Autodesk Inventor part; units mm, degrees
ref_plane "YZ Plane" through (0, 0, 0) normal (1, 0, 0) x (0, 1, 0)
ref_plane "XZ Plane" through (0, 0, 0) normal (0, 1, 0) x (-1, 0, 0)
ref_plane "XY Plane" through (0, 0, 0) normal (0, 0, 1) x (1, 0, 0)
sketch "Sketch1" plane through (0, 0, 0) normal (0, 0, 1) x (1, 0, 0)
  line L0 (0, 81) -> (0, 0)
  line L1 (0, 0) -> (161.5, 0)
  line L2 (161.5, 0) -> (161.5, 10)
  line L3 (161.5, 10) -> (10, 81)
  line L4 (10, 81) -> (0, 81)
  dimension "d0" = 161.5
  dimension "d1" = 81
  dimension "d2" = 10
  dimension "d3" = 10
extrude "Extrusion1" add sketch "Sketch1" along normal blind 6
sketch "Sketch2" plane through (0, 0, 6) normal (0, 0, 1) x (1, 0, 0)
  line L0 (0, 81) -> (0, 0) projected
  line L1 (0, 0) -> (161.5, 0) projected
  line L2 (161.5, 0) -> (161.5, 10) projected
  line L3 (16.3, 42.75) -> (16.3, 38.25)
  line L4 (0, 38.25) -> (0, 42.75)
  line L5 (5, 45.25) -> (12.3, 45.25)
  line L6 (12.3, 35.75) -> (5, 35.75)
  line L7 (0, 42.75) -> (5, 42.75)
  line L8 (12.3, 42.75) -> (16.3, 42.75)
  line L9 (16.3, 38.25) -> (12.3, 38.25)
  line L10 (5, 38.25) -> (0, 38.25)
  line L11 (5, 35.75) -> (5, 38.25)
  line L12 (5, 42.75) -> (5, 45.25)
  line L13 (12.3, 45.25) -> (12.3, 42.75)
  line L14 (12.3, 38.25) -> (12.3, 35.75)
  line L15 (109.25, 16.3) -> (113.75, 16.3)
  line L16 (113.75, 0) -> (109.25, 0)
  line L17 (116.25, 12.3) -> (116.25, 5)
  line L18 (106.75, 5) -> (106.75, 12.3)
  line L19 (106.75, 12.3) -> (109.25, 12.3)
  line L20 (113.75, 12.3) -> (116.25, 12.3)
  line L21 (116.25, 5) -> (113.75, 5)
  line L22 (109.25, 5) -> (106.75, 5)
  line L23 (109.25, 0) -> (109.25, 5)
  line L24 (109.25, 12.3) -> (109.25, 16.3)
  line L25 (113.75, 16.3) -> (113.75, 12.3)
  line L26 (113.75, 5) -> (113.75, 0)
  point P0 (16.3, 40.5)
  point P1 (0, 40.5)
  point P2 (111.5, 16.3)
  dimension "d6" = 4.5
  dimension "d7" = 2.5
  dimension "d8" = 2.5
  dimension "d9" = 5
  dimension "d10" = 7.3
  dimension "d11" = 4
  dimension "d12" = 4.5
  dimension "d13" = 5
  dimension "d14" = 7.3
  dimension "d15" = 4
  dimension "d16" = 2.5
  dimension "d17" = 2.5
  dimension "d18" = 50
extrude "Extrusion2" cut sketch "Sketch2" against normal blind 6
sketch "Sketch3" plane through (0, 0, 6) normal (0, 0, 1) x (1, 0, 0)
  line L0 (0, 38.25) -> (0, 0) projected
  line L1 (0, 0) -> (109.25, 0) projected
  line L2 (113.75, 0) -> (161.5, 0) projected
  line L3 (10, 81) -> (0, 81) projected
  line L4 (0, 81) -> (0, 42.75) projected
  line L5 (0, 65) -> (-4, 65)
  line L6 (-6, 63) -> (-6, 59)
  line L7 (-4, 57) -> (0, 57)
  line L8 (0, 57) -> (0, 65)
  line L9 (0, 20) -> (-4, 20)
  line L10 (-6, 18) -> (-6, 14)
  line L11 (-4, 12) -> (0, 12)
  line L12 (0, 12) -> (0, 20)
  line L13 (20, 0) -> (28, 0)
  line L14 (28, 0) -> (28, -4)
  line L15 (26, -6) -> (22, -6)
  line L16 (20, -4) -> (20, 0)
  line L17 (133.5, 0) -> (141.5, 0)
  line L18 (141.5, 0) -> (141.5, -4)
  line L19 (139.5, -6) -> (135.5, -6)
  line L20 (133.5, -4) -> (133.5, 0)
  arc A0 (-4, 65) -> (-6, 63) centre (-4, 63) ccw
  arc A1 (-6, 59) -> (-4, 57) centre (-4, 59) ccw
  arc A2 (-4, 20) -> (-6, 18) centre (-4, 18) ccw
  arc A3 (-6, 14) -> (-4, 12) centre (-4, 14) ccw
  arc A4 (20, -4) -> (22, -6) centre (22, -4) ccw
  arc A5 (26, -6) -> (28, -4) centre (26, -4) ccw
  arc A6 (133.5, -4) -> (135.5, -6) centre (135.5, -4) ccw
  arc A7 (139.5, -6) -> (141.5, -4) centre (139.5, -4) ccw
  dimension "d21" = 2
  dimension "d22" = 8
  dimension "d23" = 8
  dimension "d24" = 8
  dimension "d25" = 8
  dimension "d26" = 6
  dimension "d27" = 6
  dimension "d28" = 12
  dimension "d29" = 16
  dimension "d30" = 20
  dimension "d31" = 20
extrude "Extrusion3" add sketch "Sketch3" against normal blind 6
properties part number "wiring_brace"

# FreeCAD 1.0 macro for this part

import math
import FreeCAD as App
import Part
import Sketcher

V = App.Vector


def add_polygon(sketch, points):
    """Adds a closed chain of lines whose ends are joined by coincident constraints."""
    first, n = sketch.GeometryCount, len(points)
    for a, b in zip(points, points[1:] + points[:1]):
        sketch.addGeometry(Part.LineSegment(App.Vector(*a, 0), App.Vector(*b, 0)), False)
    for i in range(n):
        sketch.addConstraint(Sketcher.Constraint("Coincident", first + i, 2, first + (i + 1) % n, 1))

doc = App.newDocument("Part")
body = doc.addObject("PartDesign::Body", "Body")

# Sketch on XY plane
sketch1 = body.newObject("Sketcher::SketchObject", "Sketch")
sketch1.AttachmentSupport = (doc.getObject("XY_Plane"), [""])
sketch1.MapMode = "FlatFace"
add_polygon(sketch1, [(10, 81), (0, 81), (0, 0), (162, 0), (162, 10)])  # lines 0-4
sketch1.addConstraint([
    Sketcher.Constraint("Horizontal", 0),
    Sketcher.Constraint("Vertical", 1),
    Sketcher.Constraint("Horizontal", 2),
    Sketcher.Constraint("Vertical", 3),
    Sketcher.Constraint("Coincident", 1, 2, -1, 1),
    Sketcher.Constraint("Equal", 0, 3),
    Sketcher.Constraint("DistanceX", 0, 2, 0, 1, 10.0),
    Sketcher.Constraint("DistanceY", 1, 2, 1, 1, 81.0),
    Sketcher.Constraint("DistanceX", 2, 1, 2, 2, 161.5),
])
pad1 = body.newObject("PartDesign::Pad", "Pad")
pad1.Profile = sketch1
pad1.Length = 6

# Sketch on XY plane
sketch2 = body.newObject("Sketcher::SketchObject", "Sketch001")
sketch2.AttachmentSupport = (doc.getObject("XY_Plane"), [""])
sketch2.MapMode = "FlatFace"
sketch2.AttachmentOffset = App.Placement(V(0, 0, 6), App.Rotation())
add_polygon(sketch2, [(5, 42.8), (0, 42.8), (0, 38.2), (5, 38.2), (5, 35.8), (12.3, 35.8), (12.3, 38.2), (16.3, 38.2), (16.3, 42.8), (12.3, 42.8), (12.3, 45.2), (5, 45.2)])  # lines 0-11
add_polygon(sketch2, [(109.2, 5), (109.2, 0), (113.8, 0), (113.8, 5), (116.2, 5), (116.2, 12.3), (113.8, 12.3), (113.8, 16.3), (109.2, 16.3), (109.2, 12.3), (106.8, 12.3), (106.8, 5)])  # lines 12-23
sketch2.addConstraint([
    Sketcher.Constraint("Horizontal", 0),
    Sketcher.Constraint("Vertical", 1),
    Sketcher.Constraint("Horizontal", 2),
    Sketcher.Constraint("Vertical", 3),
    Sketcher.Constraint("Horizontal", 4),
    Sketcher.Constraint("Vertical", 5),
    Sketcher.Constraint("Horizontal", 6),
    Sketcher.Constraint("Vertical", 7),
    Sketcher.Constraint("Horizontal", 8),
    Sketcher.Constraint("Vertical", 9),
    Sketcher.Constraint("Horizontal", 10),
    Sketcher.Constraint("Vertical", 11),
    Sketcher.Constraint("Vertical", 12),
    Sketcher.Constraint("Horizontal", 13),
    Sketcher.Constraint("Vertical", 14),
    Sketcher.Constraint("Horizontal", 15),
    Sketcher.Constraint("Vertical", 16),
    Sketcher.Constraint("Horizontal", 17),
    Sketcher.Constraint("Vertical", 18),
    Sketcher.Constraint("Horizontal", 19),
    Sketcher.Constraint("Vertical", 20),
    Sketcher.Constraint("Horizontal", 21),
    Sketcher.Constraint("Vertical", 22),
    Sketcher.Constraint("Horizontal", 23),
    Sketcher.Constraint("PointOnObject", 0, 2, -2),
    Sketcher.Constraint("PointOnObject", 12, 2, -1),
    Sketcher.Constraint("Horizontal", 2, 2, 5, 2),
    Sketcher.Constraint("Horizontal", 0, 2, 7, 2),
    Sketcher.Constraint("Horizontal", 17, 2, 20, 2),
    Sketcher.Constraint("Horizontal", 15, 2, 22, 2),
    Sketcher.Constraint("Vertical", 5, 2, 8, 2),
    Sketcher.Constraint("Vertical", 3, 2, 10, 2),
    Sketcher.Constraint("Vertical", 14, 2, 17, 2),
    Sketcher.Constraint("Vertical", 12, 2, 19, 2),
    Sketcher.Constraint("Equal", 17, 21),
    Sketcher.Constraint("Equal", 19, 1),
    Sketcher.Constraint("Equal", 23, 3),
    Sketcher.Constraint("Equal", 5, 9),
    Sketcher.Constraint("Equal", 2, 12),
    Sketcher.Constraint("Equal", 10, 16),
    Sketcher.Constraint("Equal", 8, 18),
    Sketcher.Constraint("DistanceX", 0, 2, 0, 1, 5.0),
    Sketcher.Constraint("DistanceX", 6, 1, 6, 2, 4.0),
    Sketcher.Constraint("DistanceX", 4, 1, 4, 2, 7.3),
    Sketcher.Constraint("DistanceX", 13, 1, 13, 2, 4.5),
    Sketcher.Constraint("DistanceX", 15, 1, 15, 2, 2.5),
    Sketcher.Constraint("DistanceY", -1, 1, 0, 2, 42.75),
    Sketcher.Constraint("DistanceX", -1, 1, 12, 2, 109.25),
])
pocket1 = body.newObject("PartDesign::Pocket", "Pocket")
pocket1.Profile = sketch2
pocket1.Length = 6

# Sketch on XY plane
sketch3 = body.newObject("Sketcher::SketchObject", "Sketch002")
sketch3.AttachmentSupport = (doc.getObject("XY_Plane"), [""])
sketch3.MapMode = "FlatFace"
sketch3.AttachmentOffset = App.Placement(V(0, 0, 6), App.Rotation())
sketch3.addGeometry([
    Part.LineSegment(V(28, 0, 0), V(20, 0, 0)),  # 0
    Part.LineSegment(V(20, 0, 0), V(20, -4, 0)),  # 1
    Part.ArcOfCircle(Part.Circle(V(22, -4, 0), V(0, 0, 1), 2), math.radians(180), math.radians(270)),  # 2
    Part.LineSegment(V(22, -6, 0), V(26, -6, 0)),  # 3
    Part.ArcOfCircle(Part.Circle(V(26, -4, 0), V(0, 0, 1), 2), math.radians(-90), math.radians(0)),  # 4
    Part.LineSegment(V(28, -4, 0), V(28, 0, 0)),  # 5
    Part.LineSegment(V(0, 12, 0), V(0, 20, 0)),  # 6
    Part.LineSegment(V(0, 20, 0), V(-4, 20, 0)),  # 7
    Part.ArcOfCircle(Part.Circle(V(-4, 18, 0), V(0, 0, 1), 2), math.radians(90), math.radians(180)),  # 8
    Part.LineSegment(V(-6, 18, 0), V(-6, 14, 0)),  # 9
    Part.ArcOfCircle(Part.Circle(V(-4, 14, 0), V(0, 0, 1), 2), math.radians(180), math.radians(270)),  # 10
    Part.LineSegment(V(-4, 12, 0), V(0, 12, 0)),  # 11
    Part.LineSegment(V(141.5, 0, 0), V(133.5, 0, 0)),  # 12
    Part.LineSegment(V(133.5, 0, 0), V(133.5, -4, 0)),  # 13
    Part.ArcOfCircle(Part.Circle(V(135.5, -4, 0), V(0, 0, 1), 2), math.radians(180), math.radians(270)),  # 14
    Part.LineSegment(V(135.5, -6, 0), V(139.5, -6, 0)),  # 15
    Part.ArcOfCircle(Part.Circle(V(139.5, -4, 0), V(0, 0, 1), 2), math.radians(-90), math.radians(0)),  # 16
    Part.LineSegment(V(141.5, -4, 0), V(141.5, 0, 0)),  # 17
    Part.LineSegment(V(0, 57, 0), V(0, 65, 0)),  # 18
    Part.LineSegment(V(0, 65, 0), V(-4, 65, 0)),  # 19
    Part.ArcOfCircle(Part.Circle(V(-4, 63, 0), V(0, 0, 1), 2), math.radians(90), math.radians(180)),  # 20
    Part.LineSegment(V(-6, 63, 0), V(-6, 59, 0)),  # 21
    Part.ArcOfCircle(Part.Circle(V(-4, 59, 0), V(0, 0, 1), 2), math.radians(180), math.radians(270)),  # 22
    Part.LineSegment(V(-4, 57, 0), V(0, 57, 0)),  # 23
], False)
sketch3.addConstraint([
    Sketcher.Constraint("Coincident", 0, 2, 1, 1),
    Sketcher.Constraint("Tangent", 1, 2, 2, 1),
    Sketcher.Constraint("Tangent", 2, 2, 3, 1),
    Sketcher.Constraint("Tangent", 3, 2, 4, 1),
    Sketcher.Constraint("Tangent", 4, 2, 5, 1),
    Sketcher.Constraint("Coincident", 5, 2, 0, 1),
    Sketcher.Constraint("Coincident", 6, 2, 7, 1),
    Sketcher.Constraint("Tangent", 7, 2, 8, 1),
    Sketcher.Constraint("Tangent", 8, 2, 9, 1),
    Sketcher.Constraint("Tangent", 9, 2, 10, 1),
    Sketcher.Constraint("Tangent", 10, 2, 11, 1),
    Sketcher.Constraint("Coincident", 11, 2, 6, 1),
    Sketcher.Constraint("Coincident", 12, 2, 13, 1),
    Sketcher.Constraint("Tangent", 13, 2, 14, 1),
    Sketcher.Constraint("Tangent", 14, 2, 15, 1),
    Sketcher.Constraint("Tangent", 15, 2, 16, 1),
    Sketcher.Constraint("Tangent", 16, 2, 17, 1),
    Sketcher.Constraint("Coincident", 17, 2, 12, 1),
    Sketcher.Constraint("Coincident", 18, 2, 19, 1),
    Sketcher.Constraint("Tangent", 19, 2, 20, 1),
    Sketcher.Constraint("Tangent", 20, 2, 21, 1),
    Sketcher.Constraint("Tangent", 21, 2, 22, 1),
    Sketcher.Constraint("Tangent", 22, 2, 23, 1),
    Sketcher.Constraint("Coincident", 23, 2, 18, 1),
    Sketcher.Constraint("Horizontal", 0),
    Sketcher.Constraint("Vertical", 1),
    Sketcher.Constraint("Horizontal", 3),
    Sketcher.Constraint("Vertical", 5),
    Sketcher.Constraint("Vertical", 6),
    Sketcher.Constraint("Horizontal", 7),
    Sketcher.Constraint("Vertical", 9),
    Sketcher.Constraint("Horizontal", 11),
    Sketcher.Constraint("Horizontal", 12),
    Sketcher.Constraint("Vertical", 13),
    Sketcher.Constraint("Horizontal", 15),
    Sketcher.Constraint("Vertical", 17),
    Sketcher.Constraint("Vertical", 18),
    Sketcher.Constraint("Horizontal", 19),
    Sketcher.Constraint("Vertical", 21),
    Sketcher.Constraint("Horizontal", 23),
    Sketcher.Constraint("Equal", 2, 4),
    Sketcher.Constraint("Equal", 4, 8),
    Sketcher.Constraint("Equal", 8, 10),
    Sketcher.Constraint("Equal", 10, 14),
    Sketcher.Constraint("Equal", 14, 16),
    Sketcher.Constraint("Equal", 16, 20),
    Sketcher.Constraint("Equal", 20, 22),
    Sketcher.Constraint("PointOnObject", 0, 2, -1),
    Sketcher.Constraint("PointOnObject", 6, 2, -2),
    Sketcher.Constraint("PointOnObject", 12, 2, -1),
    Sketcher.Constraint("PointOnObject", 18, 2, -2),
    Sketcher.Constraint("Horizontal", 4, 3, 14, 3),
    Sketcher.Constraint("Vertical", 10, 3, 20, 3),
    Sketcher.Constraint("Equal", 3, 7),
    Sketcher.Constraint("Equal", 0, 12),
    Sketcher.Constraint("Equal", 23, 1),
    Sketcher.Constraint("Equal", 12, 6),
    Sketcher.Constraint("Equal", 6, 18),
    Sketcher.Constraint("Radius", 2, 2.0),
    Sketcher.Constraint("DistanceX", 0, 2, 0, 1, 8.0),
    Sketcher.Constraint("DistanceX", -1, 1, 0, 2, 20.0),
    Sketcher.Constraint("DistanceY", -1, 1, 6, 2, 20.0),
    Sketcher.Constraint("DistanceY", -1, 1, 20, 3, 63.0),
    Sketcher.Constraint("DistanceX", -1, 1, 14, 3, 135.5),
])
pad2 = body.newObject("PartDesign::Pad", "Pad001")
pad2.Profile = sketch3
pad2.Length = 6
pad2.Reversed = True

doc.recompute()
